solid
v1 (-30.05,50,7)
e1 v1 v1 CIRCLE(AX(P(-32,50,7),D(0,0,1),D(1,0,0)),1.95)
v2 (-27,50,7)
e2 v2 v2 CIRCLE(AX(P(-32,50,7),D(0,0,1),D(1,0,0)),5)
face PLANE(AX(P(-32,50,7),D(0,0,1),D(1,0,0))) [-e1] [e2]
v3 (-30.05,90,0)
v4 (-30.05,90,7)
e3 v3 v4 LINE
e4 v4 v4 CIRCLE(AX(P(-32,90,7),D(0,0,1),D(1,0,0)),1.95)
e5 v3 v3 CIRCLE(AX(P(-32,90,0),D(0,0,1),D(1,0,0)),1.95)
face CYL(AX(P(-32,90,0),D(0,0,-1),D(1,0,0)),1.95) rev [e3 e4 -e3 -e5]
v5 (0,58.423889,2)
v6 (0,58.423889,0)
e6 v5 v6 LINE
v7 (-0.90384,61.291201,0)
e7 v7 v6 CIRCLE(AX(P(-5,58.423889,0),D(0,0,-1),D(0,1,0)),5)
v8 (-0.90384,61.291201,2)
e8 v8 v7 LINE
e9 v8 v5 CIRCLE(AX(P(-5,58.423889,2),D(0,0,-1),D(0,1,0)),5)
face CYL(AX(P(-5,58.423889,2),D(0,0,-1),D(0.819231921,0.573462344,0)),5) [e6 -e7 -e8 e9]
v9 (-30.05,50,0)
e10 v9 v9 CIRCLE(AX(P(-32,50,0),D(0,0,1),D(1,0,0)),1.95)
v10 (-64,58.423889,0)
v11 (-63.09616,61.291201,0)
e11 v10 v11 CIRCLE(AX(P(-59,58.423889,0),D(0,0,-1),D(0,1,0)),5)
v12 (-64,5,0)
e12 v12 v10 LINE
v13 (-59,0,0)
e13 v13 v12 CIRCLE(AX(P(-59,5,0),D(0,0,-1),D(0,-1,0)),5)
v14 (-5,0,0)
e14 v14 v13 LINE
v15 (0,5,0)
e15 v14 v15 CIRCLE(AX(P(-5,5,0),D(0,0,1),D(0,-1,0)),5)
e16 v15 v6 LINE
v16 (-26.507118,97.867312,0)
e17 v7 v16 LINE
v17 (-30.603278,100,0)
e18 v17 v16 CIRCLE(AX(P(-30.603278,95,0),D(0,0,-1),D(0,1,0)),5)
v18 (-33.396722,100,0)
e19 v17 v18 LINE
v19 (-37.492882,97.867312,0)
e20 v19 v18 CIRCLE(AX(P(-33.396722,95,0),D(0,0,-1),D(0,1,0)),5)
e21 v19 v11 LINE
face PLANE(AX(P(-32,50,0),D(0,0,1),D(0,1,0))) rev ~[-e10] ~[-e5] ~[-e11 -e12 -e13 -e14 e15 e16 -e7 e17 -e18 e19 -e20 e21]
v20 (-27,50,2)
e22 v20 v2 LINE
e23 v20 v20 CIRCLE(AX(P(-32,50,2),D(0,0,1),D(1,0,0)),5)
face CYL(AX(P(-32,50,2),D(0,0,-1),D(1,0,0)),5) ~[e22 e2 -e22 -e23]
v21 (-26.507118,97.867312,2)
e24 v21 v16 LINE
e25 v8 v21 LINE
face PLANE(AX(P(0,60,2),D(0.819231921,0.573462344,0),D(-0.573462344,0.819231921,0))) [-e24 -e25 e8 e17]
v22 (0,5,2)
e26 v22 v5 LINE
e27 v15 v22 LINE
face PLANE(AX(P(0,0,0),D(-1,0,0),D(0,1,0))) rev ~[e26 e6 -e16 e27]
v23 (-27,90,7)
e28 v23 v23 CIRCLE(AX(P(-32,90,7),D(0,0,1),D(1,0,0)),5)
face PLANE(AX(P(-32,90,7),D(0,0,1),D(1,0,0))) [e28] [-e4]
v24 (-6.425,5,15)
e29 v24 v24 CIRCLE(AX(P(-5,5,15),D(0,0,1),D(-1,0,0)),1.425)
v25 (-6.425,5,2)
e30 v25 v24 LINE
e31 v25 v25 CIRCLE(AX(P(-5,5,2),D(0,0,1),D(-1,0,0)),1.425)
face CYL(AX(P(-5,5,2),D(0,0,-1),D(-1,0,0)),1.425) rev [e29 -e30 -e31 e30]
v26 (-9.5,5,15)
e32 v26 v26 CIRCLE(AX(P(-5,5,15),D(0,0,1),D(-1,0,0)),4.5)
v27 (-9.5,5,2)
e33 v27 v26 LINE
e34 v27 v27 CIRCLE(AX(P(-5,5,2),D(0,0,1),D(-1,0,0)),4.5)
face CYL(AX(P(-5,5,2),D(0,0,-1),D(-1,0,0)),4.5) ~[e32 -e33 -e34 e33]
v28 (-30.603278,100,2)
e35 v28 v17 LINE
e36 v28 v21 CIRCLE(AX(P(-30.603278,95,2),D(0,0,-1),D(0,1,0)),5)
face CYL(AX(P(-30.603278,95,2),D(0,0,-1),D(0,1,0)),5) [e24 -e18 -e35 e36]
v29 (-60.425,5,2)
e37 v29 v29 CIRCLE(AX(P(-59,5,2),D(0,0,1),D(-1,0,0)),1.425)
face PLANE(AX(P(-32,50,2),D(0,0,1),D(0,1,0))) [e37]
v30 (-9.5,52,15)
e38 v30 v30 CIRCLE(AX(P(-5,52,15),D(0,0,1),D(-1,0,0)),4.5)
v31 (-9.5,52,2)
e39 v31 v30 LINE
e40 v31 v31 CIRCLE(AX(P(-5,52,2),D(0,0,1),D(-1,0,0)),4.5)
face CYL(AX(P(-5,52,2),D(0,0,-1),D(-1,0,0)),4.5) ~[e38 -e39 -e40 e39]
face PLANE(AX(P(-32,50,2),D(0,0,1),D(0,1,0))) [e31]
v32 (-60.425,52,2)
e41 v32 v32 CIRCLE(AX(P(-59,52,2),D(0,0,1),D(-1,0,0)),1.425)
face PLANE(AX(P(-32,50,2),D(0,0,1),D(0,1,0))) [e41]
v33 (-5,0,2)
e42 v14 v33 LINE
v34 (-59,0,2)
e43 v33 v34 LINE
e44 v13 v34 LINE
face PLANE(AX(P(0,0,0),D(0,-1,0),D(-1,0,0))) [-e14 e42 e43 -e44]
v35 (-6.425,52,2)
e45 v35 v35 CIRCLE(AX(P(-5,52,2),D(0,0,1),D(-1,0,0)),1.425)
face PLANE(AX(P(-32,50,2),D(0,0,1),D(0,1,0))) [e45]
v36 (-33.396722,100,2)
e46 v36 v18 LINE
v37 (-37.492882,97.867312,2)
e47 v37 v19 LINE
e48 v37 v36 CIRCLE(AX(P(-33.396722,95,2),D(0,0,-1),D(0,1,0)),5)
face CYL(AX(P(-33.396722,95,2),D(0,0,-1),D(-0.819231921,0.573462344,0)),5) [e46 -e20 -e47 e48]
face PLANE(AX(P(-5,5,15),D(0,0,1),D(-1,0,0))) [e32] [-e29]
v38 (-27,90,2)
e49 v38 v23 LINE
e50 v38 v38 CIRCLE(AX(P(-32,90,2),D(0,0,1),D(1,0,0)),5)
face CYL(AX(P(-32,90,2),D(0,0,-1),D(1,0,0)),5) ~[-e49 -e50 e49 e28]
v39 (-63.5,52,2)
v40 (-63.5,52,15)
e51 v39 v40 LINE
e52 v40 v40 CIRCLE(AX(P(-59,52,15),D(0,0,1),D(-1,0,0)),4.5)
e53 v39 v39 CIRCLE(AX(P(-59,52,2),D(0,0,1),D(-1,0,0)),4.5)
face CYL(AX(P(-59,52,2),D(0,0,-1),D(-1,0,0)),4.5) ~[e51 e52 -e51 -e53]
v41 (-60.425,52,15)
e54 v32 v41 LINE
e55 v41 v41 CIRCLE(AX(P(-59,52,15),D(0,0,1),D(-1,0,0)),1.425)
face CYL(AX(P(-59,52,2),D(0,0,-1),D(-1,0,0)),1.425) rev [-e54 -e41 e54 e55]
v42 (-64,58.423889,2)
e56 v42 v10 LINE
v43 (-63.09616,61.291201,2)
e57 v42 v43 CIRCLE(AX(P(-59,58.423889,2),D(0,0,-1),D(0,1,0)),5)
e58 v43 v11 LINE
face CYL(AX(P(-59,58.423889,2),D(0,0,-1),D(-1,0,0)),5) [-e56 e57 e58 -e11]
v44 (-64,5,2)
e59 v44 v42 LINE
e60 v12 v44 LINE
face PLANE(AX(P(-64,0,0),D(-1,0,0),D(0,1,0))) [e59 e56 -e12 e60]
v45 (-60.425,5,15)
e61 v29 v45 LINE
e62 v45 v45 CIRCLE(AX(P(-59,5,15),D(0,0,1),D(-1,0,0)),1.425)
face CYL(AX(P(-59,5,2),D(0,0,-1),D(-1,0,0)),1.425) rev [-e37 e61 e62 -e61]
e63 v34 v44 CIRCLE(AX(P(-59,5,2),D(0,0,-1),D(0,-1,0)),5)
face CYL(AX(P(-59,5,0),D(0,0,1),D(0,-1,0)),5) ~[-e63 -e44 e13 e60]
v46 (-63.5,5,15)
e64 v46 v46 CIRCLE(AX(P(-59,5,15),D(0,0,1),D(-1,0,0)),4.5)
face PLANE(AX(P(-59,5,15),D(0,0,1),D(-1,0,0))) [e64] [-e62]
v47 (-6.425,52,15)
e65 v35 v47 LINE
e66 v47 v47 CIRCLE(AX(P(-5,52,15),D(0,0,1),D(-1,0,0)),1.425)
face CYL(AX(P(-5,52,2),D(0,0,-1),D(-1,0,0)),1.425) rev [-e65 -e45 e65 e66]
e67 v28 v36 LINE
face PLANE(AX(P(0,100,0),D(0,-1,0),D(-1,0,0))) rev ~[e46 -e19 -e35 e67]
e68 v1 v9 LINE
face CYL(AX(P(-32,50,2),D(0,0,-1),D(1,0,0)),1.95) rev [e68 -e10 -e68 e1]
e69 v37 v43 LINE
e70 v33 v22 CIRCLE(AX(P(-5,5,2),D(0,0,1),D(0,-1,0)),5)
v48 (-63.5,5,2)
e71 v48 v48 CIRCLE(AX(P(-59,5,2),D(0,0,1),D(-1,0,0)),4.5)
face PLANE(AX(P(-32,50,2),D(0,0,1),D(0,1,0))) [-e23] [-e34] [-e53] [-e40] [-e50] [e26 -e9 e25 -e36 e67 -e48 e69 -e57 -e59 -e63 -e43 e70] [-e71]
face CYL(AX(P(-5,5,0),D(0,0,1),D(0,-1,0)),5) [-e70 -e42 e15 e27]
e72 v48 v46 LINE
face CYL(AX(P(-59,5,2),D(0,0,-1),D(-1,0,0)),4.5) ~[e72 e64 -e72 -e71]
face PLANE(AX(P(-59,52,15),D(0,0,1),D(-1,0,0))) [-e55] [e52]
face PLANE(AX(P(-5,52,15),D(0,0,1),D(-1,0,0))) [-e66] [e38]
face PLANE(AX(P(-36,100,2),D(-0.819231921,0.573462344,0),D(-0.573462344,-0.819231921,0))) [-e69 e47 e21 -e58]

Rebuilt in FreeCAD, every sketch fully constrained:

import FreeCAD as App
import Part
import Sketcher

V = App.Vector
Q = App.Units.Quantity


def edges_at(feature, points):
    """Names of the edges that pass closest to the given points."""
    edges = feature.Shape.Edges
    near = lambda p: min(range(len(edges)), key=lambda i: edges[i].distToShape(Part.Vertex(*p))[0])
    return sorted({f"Edge{near(p) + 1}" for p in points})

doc = App.newDocument("Part")
body = doc.addObject("PartDesign::Body", "Body")

sketch1 = doc.addObject("Sketcher::SketchObject", "Sketch")
body.addObject(sketch1)
sketch1.AttachmentSupport = (doc.XY_Plane, [""])
sketch1.MapMode = "FlatFace"
sketch1.addGeometry([
    Part.LineSegment(V(-64, 0, 0), V(0, 0, 0)),
    Part.LineSegment(V(0, 0, 0), V(0, 100, 0)),
    Part.LineSegment(V(0, 100, 0), V(-64, 100, 0)),
    Part.LineSegment(V(-64, 100, 0), V(-64, 0, 0)),
    Part.Circle(V(-32, 50, 0), V(0, 0, 1), 1.9),
    Part.Circle(V(-32, 90, 0), V(0, 0, 1), 1.9),
], False)
sketch1.addConstraint([
    Sketcher.Constraint("Coincident", 0, 2, 1, 1),
    Sketcher.Constraint("Coincident", 1, 2, 2, 1),
    Sketcher.Constraint("Coincident", 2, 2, 3, 1),
    Sketcher.Constraint("Coincident", 3, 2, 0, 1),
    Sketcher.Constraint("Horizontal", 0),
    Sketcher.Constraint("Vertical", 1),
    Sketcher.Constraint("Horizontal", 2),
    Sketcher.Constraint("Vertical", 3),
    Sketcher.Constraint("Coincident", 0, 2, -1, 1),
    Sketcher.Constraint("Equal", 4, 5),
    Sketcher.Constraint("Vertical", 4, 3, 5, 3),
    Sketcher.Constraint("Diameter", 4, Q("3.9 mm")),
    Sketcher.Constraint("DistanceX", 0, 1, 0, 2, Q("64 mm")),
    Sketcher.Constraint("DistanceY", 1, 1, 1, 2, Q("100 mm")),
    Sketcher.Constraint("DistanceX", 4, 3, -1, 1, Q("32 mm")),
    Sketcher.Constraint("DistanceY", -1, 1, 4, 3, Q("50 mm")),
    Sketcher.Constraint("DistanceY", -1, 1, 5, 3, Q("90 mm")),
])
pad1 = doc.addObject("PartDesign::Pad", "Pad")
body.addObject(pad1)
pad1.Profile = sketch1
pad1.Length = 2

sketch2 = doc.addObject("Sketcher::SketchObject", "Sketch001")
body.addObject(sketch2)
sketch2.AttachmentSupport = (doc.XY_Plane, [""])
sketch2.MapMode = "FlatFace"
sketch2.AttachmentOffset = App.Placement(V(0, 0, 2), App.Rotation())
sketch2.addGeometry([
    Part.Circle(V(-32, 50, 0), V(0, 0, 1), 5),
    Part.Circle(V(-32, 50, 0), V(0, 0, 1), 1.9),
    Part.Circle(V(-32, 90, 0), V(0, 0, 1), 5),
    Part.Circle(V(-32, 90, 0), V(0, 0, 1), 1.9),
], False)
sketch2.addConstraint([
    Sketcher.Constraint("Coincident", 1, 3, 0, 3),
    Sketcher.Constraint("Coincident", 3, 3, 2, 3),
    Sketcher.Constraint("Equal", 0, 2),
    Sketcher.Constraint("Equal", 1, 3),
    Sketcher.Constraint("Vertical", 1, 3, 2, 3),
    Sketcher.Constraint("Diameter", 0, Q("10 mm")),
    Sketcher.Constraint("Diameter", 1, Q("3.9 mm")),
    Sketcher.Constraint("DistanceX", 0, 3, -1, 1, Q("32 mm")),
    Sketcher.Constraint("DistanceY", -1, 1, 0, 3, Q("50 mm")),
    Sketcher.Constraint("DistanceY", -1, 1, 2, 3, Q("90 mm")),
])
pad2 = doc.addObject("PartDesign::Pad", "Pad001")
body.addObject(pad2)
pad2.Profile = sketch2
pad2.Length = 5

sketch3 = doc.addObject("Sketcher::SketchObject", "Sketch002")
body.addObject(sketch3)
sketch3.AttachmentSupport = (doc.XY_Plane, [""])
sketch3.MapMode = "FlatFace"
sketch3.AttachmentOffset = App.Placement(V(0, 0, 2), App.Rotation())
sketch3.addGeometry([
    Part.Circle(V(-59, 5, 0), V(0, 0, 1), 4.5),
    Part.Circle(V(-59, 5, 0), V(0, 0, 1), 1.4),
    Part.Circle(V(-5, 5, 0), V(0, 0, 1), 4.5),
    Part.Circle(V(-5, 5, 0), V(0, 0, 1), 1.4),
    Part.Circle(V(-5, 52, 0), V(0, 0, 1), 4.5),
    Part.Circle(V(-5, 52, 0), V(0, 0, 1), 1.4),
    Part.Circle(V(-59, 52, 0), V(0, 0, 1), 4.5),
    Part.Circle(V(-59, 52, 0), V(0, 0, 1), 1.4),
], False)
sketch3.addConstraint([
    Sketcher.Constraint("Coincident", 1, 3, 0, 3),
    Sketcher.Constraint("Coincident", 3, 3, 2, 3),
    Sketcher.Constraint("Coincident", 5, 3, 4, 3),
    Sketcher.Constraint("Coincident", 7, 3, 6, 3),
    Sketcher.Constraint("Equal", 0, 2),
    Sketcher.Constraint("Equal", 1, 3),
    Sketcher.Constraint("Equal", 2, 4),
    Sketcher.Constraint("Equal", 3, 5),
    Sketcher.Constraint("Equal", 4, 6),
    Sketcher.Constraint("Equal", 5, 7),
    Sketcher.Constraint("Horizontal", 1, 3, 2, 3),
    Sketcher.Constraint("Horizontal", 5, 3, 6, 3),
    Sketcher.Constraint("Vertical", 3, 3, 4, 3),
    Sketcher.Constraint("Vertical", 1, 3, 6, 3),
    Sketcher.Constraint("Diameter", 0, Q("9 mm")),
    Sketcher.Constraint("Diameter", 1, Q("2.85 mm")),
    Sketcher.Constraint("DistanceX", 0, 3, -1, 1, Q("59 mm")),
    Sketcher.Constraint("DistanceY", -1, 1, 0, 3, Q("5 mm")),
    Sketcher.Constraint("DistanceX", 2, 3, -1, 1, Q("5 mm")),
    Sketcher.Constraint("DistanceY", -1, 1, 4, 3, Q("52 mm")),
])
pad3 = doc.addObject("PartDesign::Pad", "Pad002")
body.addObject(pad3)
pad3.Profile = sketch3
pad3.Length = 13

sketch4 = doc.addObject("Sketcher::SketchObject", "Sketch003")
body.addObject(sketch4)
sketch4.AttachmentSupport = (doc.XY_Plane, [""])
sketch4.MapMode = "FlatFace"
sketch4.AttachmentOffset = App.Placement(V(0, 0, 2), App.Rotation())
sketch4.addGeometry([
    Part.LineSegment(V(-36, 100, 0), V(-64, 100, 0)),
    Part.LineSegment(V(-64, 100, 0), V(-64, 60, 0)),
    Part.LineSegment(V(-64, 60, 0), V(-36, 100, 0)),
    Part.LineSegment(V(0, 100, 0), V(-28, 100, 0)),
    Part.LineSegment(V(-28, 100, 0), V(0, 60, 0)),
    Part.LineSegment(V(0, 60, 0), V(0, 100, 0)),
], False)
sketch4.addConstraint([
    Sketcher.Constraint("Coincident", 0, 2, 1, 1),
    Sketcher.Constraint("Coincident", 1, 2, 2, 1),
    Sketcher.Constraint("Coincident", 2, 2, 0, 1),
    Sketcher.Constraint("Coincident", 3, 2, 4, 1),
    Sketcher.Constraint("Coincident", 4, 2, 5, 1),
    Sketcher.Constraint("Coincident", 5, 2, 3, 1),
    Sketcher.Constraint("Horizontal", 0),
    Sketcher.Constraint("Vertical", 1),
    Sketcher.Constraint("Horizontal", 3),
    Sketcher.Constraint("Vertical", 5),
    Sketcher.Constraint("PointOnObject", 4, 2, -2),
    Sketcher.Constraint("Horizontal", 2, 2, 3, 2),
    Sketcher.Constraint("Horizontal", 1, 2, 4, 2),
    Sketcher.Constraint("Equal", 0, 3),
    Sketcher.Constraint("DistanceX", 0, 2, 0, 1, Q("28 mm")),
    Sketcher.Constraint("DistanceY", 1, 2, 1, 1, Q("40 mm")),
    Sketcher.Constraint("DistanceX", 0, 2, -1, 1, Q("64 mm")),
    Sketcher.Constraint("DistanceY", -1, 1, 0, 2, Q("100 mm")),
])
pocket1 = doc.addObject("PartDesign::Pocket", "Pocket")
body.addObject(pocket1)
pocket1.Profile = sketch4
pocket1.Type = "ThroughAll"
doc.recompute()

fillet = doc.addObject("PartDesign::Fillet", "Fillet")
body.addObject(fillet)
fillet.Base = (pocket1, edges_at(pocket1, [
    (-64, 60, 1),
    (-36, 100, 1),
    (-64, 0, 1),
    (0, 60, 1),
    (-28, 100, 1),
    (0, 0, 1),
]))
fillet.Radius = 5

doc.recompute()
